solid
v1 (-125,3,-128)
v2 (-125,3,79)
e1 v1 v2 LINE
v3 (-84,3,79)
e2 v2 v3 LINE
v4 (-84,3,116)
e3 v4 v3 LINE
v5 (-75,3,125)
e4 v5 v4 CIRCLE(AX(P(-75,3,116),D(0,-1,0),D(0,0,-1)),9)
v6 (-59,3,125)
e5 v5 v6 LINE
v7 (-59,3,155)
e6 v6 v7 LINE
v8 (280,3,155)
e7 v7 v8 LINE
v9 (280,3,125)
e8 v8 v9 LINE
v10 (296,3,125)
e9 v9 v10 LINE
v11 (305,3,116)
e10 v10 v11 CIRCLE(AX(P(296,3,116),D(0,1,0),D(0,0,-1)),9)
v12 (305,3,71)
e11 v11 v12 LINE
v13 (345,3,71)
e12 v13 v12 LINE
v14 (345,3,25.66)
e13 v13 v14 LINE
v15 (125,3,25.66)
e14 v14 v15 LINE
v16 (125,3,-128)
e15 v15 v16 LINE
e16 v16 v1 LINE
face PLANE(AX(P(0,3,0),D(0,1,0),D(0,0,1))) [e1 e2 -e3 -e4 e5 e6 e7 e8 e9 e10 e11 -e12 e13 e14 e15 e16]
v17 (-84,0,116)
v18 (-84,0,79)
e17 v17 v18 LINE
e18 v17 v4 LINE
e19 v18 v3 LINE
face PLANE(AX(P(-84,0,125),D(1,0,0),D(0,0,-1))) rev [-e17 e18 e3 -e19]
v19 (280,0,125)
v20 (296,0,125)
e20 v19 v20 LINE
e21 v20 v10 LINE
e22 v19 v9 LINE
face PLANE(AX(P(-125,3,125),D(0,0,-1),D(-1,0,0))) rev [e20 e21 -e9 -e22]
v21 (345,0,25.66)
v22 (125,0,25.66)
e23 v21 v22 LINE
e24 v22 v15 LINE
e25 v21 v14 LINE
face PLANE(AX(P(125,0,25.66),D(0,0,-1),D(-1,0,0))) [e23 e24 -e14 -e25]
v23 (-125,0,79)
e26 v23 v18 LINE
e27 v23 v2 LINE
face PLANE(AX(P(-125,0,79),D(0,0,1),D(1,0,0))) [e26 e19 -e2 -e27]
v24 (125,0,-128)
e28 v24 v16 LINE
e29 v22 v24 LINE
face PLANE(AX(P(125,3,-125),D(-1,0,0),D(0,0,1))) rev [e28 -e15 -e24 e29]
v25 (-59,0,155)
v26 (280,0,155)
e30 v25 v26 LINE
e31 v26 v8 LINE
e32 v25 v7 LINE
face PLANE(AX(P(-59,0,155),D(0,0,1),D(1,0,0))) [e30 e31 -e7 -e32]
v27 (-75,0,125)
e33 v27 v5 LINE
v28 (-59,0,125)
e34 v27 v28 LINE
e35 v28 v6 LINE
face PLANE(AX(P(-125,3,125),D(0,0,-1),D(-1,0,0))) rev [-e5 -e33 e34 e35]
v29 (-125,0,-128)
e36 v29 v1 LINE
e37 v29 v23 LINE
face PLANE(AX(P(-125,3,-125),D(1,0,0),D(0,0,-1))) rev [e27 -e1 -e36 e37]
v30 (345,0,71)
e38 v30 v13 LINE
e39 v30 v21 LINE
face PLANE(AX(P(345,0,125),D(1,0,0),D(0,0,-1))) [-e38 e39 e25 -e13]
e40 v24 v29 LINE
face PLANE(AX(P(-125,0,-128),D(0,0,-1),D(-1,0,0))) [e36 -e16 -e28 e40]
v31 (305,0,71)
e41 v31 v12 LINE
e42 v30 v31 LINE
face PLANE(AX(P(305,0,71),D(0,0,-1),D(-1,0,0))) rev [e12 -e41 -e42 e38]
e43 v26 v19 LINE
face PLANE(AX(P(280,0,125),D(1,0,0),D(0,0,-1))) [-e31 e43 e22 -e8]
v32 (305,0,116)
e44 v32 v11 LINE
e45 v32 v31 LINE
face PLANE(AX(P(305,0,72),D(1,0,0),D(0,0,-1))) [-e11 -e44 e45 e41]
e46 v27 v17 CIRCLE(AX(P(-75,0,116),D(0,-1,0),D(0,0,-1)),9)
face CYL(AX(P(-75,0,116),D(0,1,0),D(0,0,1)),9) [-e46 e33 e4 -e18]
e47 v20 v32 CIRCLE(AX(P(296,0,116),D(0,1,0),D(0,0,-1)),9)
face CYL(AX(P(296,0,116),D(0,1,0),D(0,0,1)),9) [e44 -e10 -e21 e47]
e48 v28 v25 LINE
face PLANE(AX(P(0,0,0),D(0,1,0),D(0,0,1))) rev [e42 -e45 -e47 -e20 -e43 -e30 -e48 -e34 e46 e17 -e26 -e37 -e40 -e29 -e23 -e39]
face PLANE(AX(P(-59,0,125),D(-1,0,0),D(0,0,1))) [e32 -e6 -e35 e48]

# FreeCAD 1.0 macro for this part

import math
import FreeCAD as App
import Part
import Sketcher

V = App.Vector
Q = App.Units.Quantity

doc = App.newDocument("Part")
body = doc.addObject("PartDesign::Body", "Body")

sketch1 = body.newObject("Sketcher::SketchObject", "Sketch")
sketch1.AttachmentSupport = (doc.getObject("XZ_Plane"), [""])
sketch1.MapMode = "FlatFace"
sketch1.addGeometry([
    Part.LineSegment(V(-125, -125, 0), V(-125, 125, 0)),
    Part.LineSegment(V(-125, 125, 0), V(125, 125, 0)),
    Part.LineSegment(V(125, 125, 0), V(125, -125, 0)),
    Part.LineSegment(V(125, -125, 0), V(-125, -125, 0)),
], False)
sketch1.addConstraint([
    Sketcher.Constraint("Coincident", 0, 2, 1, 1),
    Sketcher.Constraint("Coincident", 1, 2, 2, 1),
    Sketcher.Constraint("Coincident", 2, 2, 3, 1),
    Sketcher.Constraint("Coincident", 3, 2, 0, 1),
    Sketcher.Constraint("Vertical", 0),
    Sketcher.Constraint("Horizontal", 1),
    Sketcher.Constraint("Vertical", 2),
    Sketcher.Constraint("Horizontal", 3),
    Sketcher.Constraint("Symmetric", 0, 2, 2, 2, -1, 1),
    Sketcher.Constraint("Equal", 3, 0),
    Sketcher.Constraint("DistanceX", 1, 1, 1, 2, 250.0),
])
pad1 = body.newObject("PartDesign::Pad", "Pad")
pad1.Profile = sketch1
pad1.Length = 3
pad1.Reversed = True

sketch2 = body.newObject("Sketcher::SketchObject", "Sketch001")
sketch2.AttachmentSupport = (doc.getObject("XZ_Plane"), [""])
sketch2.MapMode = "FlatFace"
sketch2.AttachmentOffset = App.Placement(V(0, 0, -3), App.Rotation())
sketch2.addGeometry([
    Part.LineSegment(V(-125, -128, 0), V(-125, -125, 0)),
    Part.LineSegment(V(-125, -125, 0), V(125, -125, 0)),
    Part.LineSegment(V(125, -125, 0), V(125, -128, 0)),
    Part.LineSegment(V(125, -128, 0), V(-125, -128, 0)),
], False)
sketch2.addConstraint([
    Sketcher.Constraint("Coincident", 0, 2, 1, 1),
    Sketcher.Constraint("Coincident", 1, 2, 2, 1),
    Sketcher.Constraint("Coincident", 2, 2, 3, 1),
    Sketcher.Constraint("Coincident", 3, 2, 0, 1),
    Sketcher.Constraint("Vertical", 0),
    Sketcher.Constraint("Horizontal", 1),
    Sketcher.Constraint("Vertical", 2),
    Sketcher.Constraint("Horizontal", 3),
    Sketcher.Constraint("DistanceX", 1, 1, 1, 2, 250.0),
    Sketcher.Constraint("DistanceY", 0, 1, 0, 2, 3.0),
    Sketcher.Constraint("DistanceX", 0, 2, -1, 1, 125.0),
    Sketcher.Constraint("DistanceY", 0, 2, -1, 1, 125.0),
])
pad2 = body.newObject("PartDesign::Pad", "Pad001")
pad2.Profile = sketch2
pad2.Length = 3

sketch3 = body.newObject("Sketcher::SketchObject", "Sketch002")
sketch3.AttachmentSupport = (doc.getObject("XZ_Plane"), [""])
sketch3.MapMode = "FlatFace"
sketch3.AttachmentOffset = App.Placement(V(0, 0, -3), App.Rotation())
sketch3.addGeometry([
    Part.LineSegment(V(125, 25.66, 0), V(125, 125, 0)),
    Part.LineSegment(V(125, 125, 0), V(345, 125, 0)),
    Part.LineSegment(V(345, 125, 0), V(345, 25.66, 0)),
    Part.LineSegment(V(345, 25.66, 0), V(125, 25.66, 0)),
], False)
sketch3.addConstraint([
    Sketcher.Constraint("Coincident", 0, 2, 1, 1),
    Sketcher.Constraint("Coincident", 1, 2, 2, 1),
    Sketcher.Constraint("Coincident", 2, 2, 3, 1),
    Sketcher.Constraint("Coincident", 3, 2, 0, 1),
    Sketcher.Constraint("Vertical", 0),
    Sketcher.Constraint("Horizontal", 1),
    Sketcher.Constraint("Vertical", 2),
    Sketcher.Constraint("Horizontal", 3),
    Sketcher.Constraint("DistanceX", 1, 1, 1, 2, 220.0),
    Sketcher.Constraint("DistanceX", -1, 1, 0, 2, 125.0),
    Sketcher.Constraint("DistanceY", -1, 1, 0, 2, 125.0),
    Sketcher.Constraint("DistanceY", 0, 1, 0, 2, 99.34),
])
pad3 = body.newObject("PartDesign::Pad", "Pad002")
pad3.Profile = sketch3
pad3.Length = 3

sketch4 = body.newObject("Sketcher::SketchObject", "Sketch003")
sketch4.AttachmentSupport = (doc.getObject("XZ_Plane"), [""])
sketch4.MapMode = "FlatFace"
sketch4.AttachmentOffset = App.Placement(V(0, 0, -3), App.Rotation())
sketch4.addGeometry([
    Part.LineSegment(V(-125, 73, 0), V(-125, 125, 0)),
    Part.LineSegment(V(-125, 125, 0), V(-84, 125, 0)),
    Part.LineSegment(V(-84, 125, 0), V(-84, 73, 0)),
    Part.LineSegment(V(-84, 73, 0), V(-125, 73, 0)),
], False)
sketch4.addConstraint([
    Sketcher.Constraint("Coincident", 0, 2, 1, 1),
    Sketcher.Constraint("Coincident", 1, 2, 2, 1),
    Sketcher.Constraint("Coincident", 2, 2, 3, 1),
    Sketcher.Constraint("Coincident", 3, 2, 0, 1),
    Sketcher.Constraint("Vertical", 0),
    Sketcher.Constraint("Horizontal", 1),
    Sketcher.Constraint("Vertical", 2),
    Sketcher.Constraint("Horizontal", 3),
    Sketcher.Constraint("DistanceX", 1, 1, 1, 2, 41.0),
    Sketcher.Constraint("DistanceY", 0, 1, 0, 2, 52.0),
    Sketcher.Constraint("DistanceX", 0, 2, -1, 1, 125.0),
    Sketcher.Constraint("DistanceY", -1, 1, 0, 2, 125.0),
])
pocket1 = body.newObject("PartDesign::Pocket", "Pocket")
pocket1.Profile = sketch4
pocket1.Length = 3
pocket1.Reversed = True

sketch5 = body.newObject("Sketcher::SketchObject", "Sketch004")
sketch5.AttachmentSupport = (doc.getObject("XZ_Plane"), [""])
sketch5.MapMode = "FlatFace"
sketch5.AttachmentOffset = App.Placement(V(0, 0, -3), App.Rotation())
sketch5.addGeometry([
    Part.LineSegment(V(-84, 116, 0), V(-84, 125, 0)),
    Part.LineSegment(V(-84, 125, 0), V(-75, 125, 0)),
    Part.ArcOfCircle(Part.Circle(V(-75, 116, 0), V(0, 0, 1), 9), math.radians(90), math.radians(180)),
], False)
sketch5.addConstraint([
    Sketcher.Constraint("Coincident", 0, 2, 1, 1),
    Sketcher.Constraint("Tangent", 1, 2, 2, 1),
    Sketcher.Constraint("Tangent", 2, 2, 0, 1),
    Sketcher.Constraint("Vertical", 0),
    Sketcher.Constraint("Horizontal", 1),
    Sketcher.Constraint("Radius", 2, 9.0),
    Sketcher.Constraint("DistanceX", 2, 3, -1, 1, 75.0),
    Sketcher.Constraint("DistanceY", -1, 1, 2, 3, 116.0),
])
pocket2 = body.newObject("PartDesign::Pocket", "Pocket001")
pocket2.Profile = sketch5
pocket2.Length = 3
pocket2.Reversed = True

sketch6 = body.newObject("Sketcher::SketchObject", "Sketch005")
sketch6.AttachmentSupport = (doc.getObject("XZ_Plane"), [""])
sketch6.MapMode = "FlatFace"
sketch6.AttachmentOffset = App.Placement(V(0, 0, -3), App.Rotation())
sketch6.addGeometry([
    Part.LineSegment(V(-59, 125, 0), V(-59, 155, 0)),
    Part.LineSegment(V(-59, 155, 0), V(280, 155, 0)),
    Part.LineSegment(V(280, 155, 0), V(280, 125, 0)),
    Part.LineSegment(V(280, 125, 0), V(-59, 125, 0)),
], False)
sketch6.addConstraint([
    Sketcher.Constraint("Coincident", 0, 2, 1, 1),
    Sketcher.Constraint("Coincident", 1, 2, 2, 1),
    Sketcher.Constraint("Coincident", 2, 2, 3, 1),
    Sketcher.Constraint("Coincident", 3, 2, 0, 1),
    Sketcher.Constraint("Vertical", 0),
    Sketcher.Constraint("Horizontal", 1),
    Sketcher.Constraint("Vertical", 2),
    Sketcher.Constraint("Horizontal", 3),
    Sketcher.Constraint("DistanceX", 1, 1, 1, 2, 339.0),
    Sketcher.Constraint("DistanceY", 0, 1, 0, 2, 30.0),
    Sketcher.Constraint("DistanceX", 0, 2, -1, 1, 59.0),
    Sketcher.Constraint("DistanceY", -1, 1, 0, 2, 155.0),
])
pad4 = body.newObject("PartDesign::Pad", "Pad003")
pad4.Profile = sketch6
pad4.Length = 3

sketch7 = body.newObject("Sketcher::SketchObject", "Sketch006")
sketch7.AttachmentSupport = (doc.getObject("XZ_Plane"), [""])
sketch7.MapMode = "FlatFace"
sketch7.AttachmentOffset = App.Placement(V(0, 0, -3), App.Rotation())
sketch7.addGeometry([
    Part.LineSegment(V(345, 72, 0), V(304, 72, 0)),
    Part.LineSegment(V(304, 72, 0), V(304, 116, 0)),
    Part.ArcOfCircle(Part.Circle(V(295, 116, 0), V(0, 0, 1), 9), math.radians(0), math.radians(90)),
    Part.LineSegment(V(295, 125, 0), V(345, 125, 0)),
    Part.LineSegment(V(345, 125, 0), V(345, 72, 0)),
], False)
sketch7.addConstraint([
    Sketcher.Constraint("Coincident", 0, 2, 1, 1),
    Sketcher.Constraint("Tangent", 1, 2, 2, 1),
    Sketcher.Constraint("Tangent", 2, 2, 3, 1),
    Sketcher.Constraint("Coincident", 3, 2, 4, 1),
    Sketcher.Constraint("Coincident", 4, 2, 0, 1),
    Sketcher.Constraint("Horizontal", 0),
    Sketcher.Constraint("Vertical", 1),
    Sketcher.Constraint("Horizontal", 3),
    Sketcher.Constraint("Vertical", 4),
    Sketcher.Constraint("Radius", 2, 9.0),
    Sketcher.Constraint("DistanceX", 0, 2, 0, 1, 41.0),
    Sketcher.Constraint("DistanceY", 1, 1, 1, 2, 44.0),
    Sketcher.Constraint("DistanceX", -1, 1, 2, 3, 295.0),
    Sketcher.Constraint("DistanceY", -1, 1, 2, 3, 116.0),
])
pocket3 = body.newObject("PartDesign::Pocket", "Pocket002")
pocket3.Profile = sketch7
pocket3.Length = 3
pocket3.Reversed = True

sketch8 = body.newObject("Sketcher::SketchObject", "Sketch007")
sketch8.AttachmentSupport = (doc.getObject("XZ_Plane"), [""])
sketch8.MapMode = "FlatFace"
sketch8.AttachmentOffset = App.Placement(V(0, 0, -3), App.Rotation())
sketch8.addGeometry([
    Part.LineSegment(V(304, 72, 0), V(304, 116, 0)),
    Part.LineSegment(V(304, 116, 0), V(305, 116, 0)),
    Part.LineSegment(V(305, 116, 0), V(305, 72, 0)),
    Part.LineSegment(V(305, 72, 0), V(304, 72, 0)),
], False)
sketch8.addConstraint([
    Sketcher.Constraint("Coincident", 0, 2, 1, 1),
    Sketcher.Constraint("Coincident", 1, 2, 2, 1),
    Sketcher.Constraint("Coincident", 2, 2, 3, 1),
    Sketcher.Constraint("Coincident", 3, 2, 0, 1),
    Sketcher.Constraint("Vertical", 0),
    Sketcher.Constraint("Horizontal", 1),
    Sketcher.Constraint("Vertical", 2),
    Sketcher.Constraint("Horizontal", 3),
    Sketcher.Constraint("DistanceX", 1, 1, 1, 2, 1.0),
    Sketcher.Constraint("DistanceY", 0, 1, 0, 2, 44.0),
    Sketcher.Constraint("DistanceX", -1, 1, 0, 2, 304.0),
    Sketcher.Constraint("DistanceY", -1, 1, 0, 2, 116.0),
])
pad5 = body.newObject("PartDesign::Pad", "Pad004")
pad5.Profile = sketch8
pad5.Length = 3

sketch9 = body.newObject("Sketcher::SketchObject", "Sketch008")
sketch9.AttachmentSupport = (doc.getObject("XZ_Plane"), [""])
sketch9.MapMode = "FlatFace"
sketch9.AttachmentOffset = App.Placement(V(0, 0, -3), App.Rotation())
sketch9.addGeometry([
    Part.LineSegment(V(295, 125, 0), V(296, 125, 0)),
    Part.ArcOfCircle(Part.Circle(V(296, 116, 0), V(0, 0, 1), 9), math.radians(0), math.radians(90)),
    Part.LineSegment(V(305, 116, 0), V(304, 116, 0)),
    Part.LineSegment(V(304, 116, 0), V(295, 125, 0)),
], False)
sketch9.addConstraint([
    Sketcher.Constraint("Tangent", 0, 2, 1, 2),
    Sketcher.Constraint("Coincident", 1, 1, 2, 1),
    Sketcher.Constraint("Coincident", 2, 2, 3, 1),
    Sketcher.Constraint("Coincident", 3, 2, 0, 1),
    Sketcher.Constraint("Horizontal", 0),
    Sketcher.Constraint("Horizontal", 2),
    Sketcher.Constraint("Equal", 0, 2),
    Sketcher.Constraint("Radius", 1, 9.0),
    Sketcher.Constraint("DistanceX", 0, 1, 0, 2, 1.0),
    Sketcher.Constraint("Angle", 3, Q("135 deg")),
    Sketcher.Constraint("DistanceX", -1, 1, 1, 3, 296.0),
    Sketcher.Constraint("DistanceY", -1, 1, 1, 3, 116.0),
])
pad6 = body.newObject("PartDesign::Pad", "Pad005")
pad6.Profile = sketch9
pad6.Length = 3

sketch10 = body.newObject("Sketcher::SketchObject", "Sketch009")
sketch10.AttachmentSupport = (doc.getObject("XZ_Plane"), [""])
sketch10.MapMode = "FlatFace"
sketch10.AttachmentOffset = App.Placement(V(0, 0, -3), App.Rotation())
sketch10.addGeometry([
    Part.LineSegment(V(-125, 73, 0), V(-125, 79, 0)),
    Part.LineSegment(V(-125, 79, 0), V(-84, 79, 0)),
    Part.LineSegment(V(-84, 79, 0), V(-84, 73, 0)),
    Part.LineSegment(V(-84, 73, 0), V(-125, 73, 0)),
], False)
sketch10.addConstraint([
    Sketcher.Constraint("Coincident", 0, 2, 1, 1),
    Sketcher.Constraint("Coincident", 1, 2, 2, 1),
    Sketcher.Constraint("Coincident", 2, 2, 3, 1),
    Sketcher.Constraint("Coincident", 3, 2, 0, 1),
    Sketcher.Constraint("Vertical", 0),
    Sketcher.Constraint("Horizontal", 1),
    Sketcher.Constraint("Vertical", 2),
    Sketcher.Constraint("Horizontal", 3),
    Sketcher.Constraint("DistanceX", 1, 1, 1, 2, 41.0),
    Sketcher.Constraint("DistanceY", 0, 1, 0, 2, 6.0),
    Sketcher.Constraint("DistanceX", 0, 2, -1, 1, 125.0),
    Sketcher.Constraint("DistanceY", -1, 1, 0, 2, 79.0),
])
pad7 = body.newObject("PartDesign::Pad", "Pad006")
pad7.Profile = sketch10
pad7.Length = 3

sketch11 = body.newObject("Sketcher::SketchObject", "Sketch010")
sketch11.AttachmentSupport = (doc.getObject("XZ_Plane"), [""])
sketch11.MapMode = "FlatFace"
sketch11.AttachmentOffset = App.Placement(V(0, 0, -3), App.Rotation())
sketch11.addGeometry([
    Part.LineSegment(V(305, 71, 0), V(305, 72, 0)),
    Part.LineSegment(V(305, 72, 0), V(345, 72, 0)),
    Part.LineSegment(V(345, 72, 0), V(345, 71, 0)),
    Part.LineSegment(V(345, 71, 0), V(305, 71, 0)),
], False)
sketch11.addConstraint([
    Sketcher.Constraint("Coincident", 0, 2, 1, 1),
    Sketcher.Constraint("Coincident", 1, 2, 2, 1),
    Sketcher.Constraint("Coincident", 2, 2, 3, 1),
    Sketcher.Constraint("Coincident", 3, 2, 0, 1),
    Sketcher.Constraint("Vertical", 0),
    Sketcher.Constraint("Horizontal", 1),
    Sketcher.Constraint("Vertical", 2),
    Sketcher.Constraint("Horizontal", 3),
    Sketcher.Constraint("DistanceX", 1, 1, 1, 2, 40.0),
    Sketcher.Constraint("DistanceY", 0, 1, 0, 2, 1.0),
    Sketcher.Constraint("DistanceX", -1, 1, 0, 2, 305.0),
    Sketcher.Constraint("DistanceY", -1, 1, 0, 2, 72.0),
])
pocket4 = body.newObject("PartDesign::Pocket", "Pocket003")
pocket4.Profile = sketch11
pocket4.Length = 3
pocket4.Reversed = True

doc.recompute()
